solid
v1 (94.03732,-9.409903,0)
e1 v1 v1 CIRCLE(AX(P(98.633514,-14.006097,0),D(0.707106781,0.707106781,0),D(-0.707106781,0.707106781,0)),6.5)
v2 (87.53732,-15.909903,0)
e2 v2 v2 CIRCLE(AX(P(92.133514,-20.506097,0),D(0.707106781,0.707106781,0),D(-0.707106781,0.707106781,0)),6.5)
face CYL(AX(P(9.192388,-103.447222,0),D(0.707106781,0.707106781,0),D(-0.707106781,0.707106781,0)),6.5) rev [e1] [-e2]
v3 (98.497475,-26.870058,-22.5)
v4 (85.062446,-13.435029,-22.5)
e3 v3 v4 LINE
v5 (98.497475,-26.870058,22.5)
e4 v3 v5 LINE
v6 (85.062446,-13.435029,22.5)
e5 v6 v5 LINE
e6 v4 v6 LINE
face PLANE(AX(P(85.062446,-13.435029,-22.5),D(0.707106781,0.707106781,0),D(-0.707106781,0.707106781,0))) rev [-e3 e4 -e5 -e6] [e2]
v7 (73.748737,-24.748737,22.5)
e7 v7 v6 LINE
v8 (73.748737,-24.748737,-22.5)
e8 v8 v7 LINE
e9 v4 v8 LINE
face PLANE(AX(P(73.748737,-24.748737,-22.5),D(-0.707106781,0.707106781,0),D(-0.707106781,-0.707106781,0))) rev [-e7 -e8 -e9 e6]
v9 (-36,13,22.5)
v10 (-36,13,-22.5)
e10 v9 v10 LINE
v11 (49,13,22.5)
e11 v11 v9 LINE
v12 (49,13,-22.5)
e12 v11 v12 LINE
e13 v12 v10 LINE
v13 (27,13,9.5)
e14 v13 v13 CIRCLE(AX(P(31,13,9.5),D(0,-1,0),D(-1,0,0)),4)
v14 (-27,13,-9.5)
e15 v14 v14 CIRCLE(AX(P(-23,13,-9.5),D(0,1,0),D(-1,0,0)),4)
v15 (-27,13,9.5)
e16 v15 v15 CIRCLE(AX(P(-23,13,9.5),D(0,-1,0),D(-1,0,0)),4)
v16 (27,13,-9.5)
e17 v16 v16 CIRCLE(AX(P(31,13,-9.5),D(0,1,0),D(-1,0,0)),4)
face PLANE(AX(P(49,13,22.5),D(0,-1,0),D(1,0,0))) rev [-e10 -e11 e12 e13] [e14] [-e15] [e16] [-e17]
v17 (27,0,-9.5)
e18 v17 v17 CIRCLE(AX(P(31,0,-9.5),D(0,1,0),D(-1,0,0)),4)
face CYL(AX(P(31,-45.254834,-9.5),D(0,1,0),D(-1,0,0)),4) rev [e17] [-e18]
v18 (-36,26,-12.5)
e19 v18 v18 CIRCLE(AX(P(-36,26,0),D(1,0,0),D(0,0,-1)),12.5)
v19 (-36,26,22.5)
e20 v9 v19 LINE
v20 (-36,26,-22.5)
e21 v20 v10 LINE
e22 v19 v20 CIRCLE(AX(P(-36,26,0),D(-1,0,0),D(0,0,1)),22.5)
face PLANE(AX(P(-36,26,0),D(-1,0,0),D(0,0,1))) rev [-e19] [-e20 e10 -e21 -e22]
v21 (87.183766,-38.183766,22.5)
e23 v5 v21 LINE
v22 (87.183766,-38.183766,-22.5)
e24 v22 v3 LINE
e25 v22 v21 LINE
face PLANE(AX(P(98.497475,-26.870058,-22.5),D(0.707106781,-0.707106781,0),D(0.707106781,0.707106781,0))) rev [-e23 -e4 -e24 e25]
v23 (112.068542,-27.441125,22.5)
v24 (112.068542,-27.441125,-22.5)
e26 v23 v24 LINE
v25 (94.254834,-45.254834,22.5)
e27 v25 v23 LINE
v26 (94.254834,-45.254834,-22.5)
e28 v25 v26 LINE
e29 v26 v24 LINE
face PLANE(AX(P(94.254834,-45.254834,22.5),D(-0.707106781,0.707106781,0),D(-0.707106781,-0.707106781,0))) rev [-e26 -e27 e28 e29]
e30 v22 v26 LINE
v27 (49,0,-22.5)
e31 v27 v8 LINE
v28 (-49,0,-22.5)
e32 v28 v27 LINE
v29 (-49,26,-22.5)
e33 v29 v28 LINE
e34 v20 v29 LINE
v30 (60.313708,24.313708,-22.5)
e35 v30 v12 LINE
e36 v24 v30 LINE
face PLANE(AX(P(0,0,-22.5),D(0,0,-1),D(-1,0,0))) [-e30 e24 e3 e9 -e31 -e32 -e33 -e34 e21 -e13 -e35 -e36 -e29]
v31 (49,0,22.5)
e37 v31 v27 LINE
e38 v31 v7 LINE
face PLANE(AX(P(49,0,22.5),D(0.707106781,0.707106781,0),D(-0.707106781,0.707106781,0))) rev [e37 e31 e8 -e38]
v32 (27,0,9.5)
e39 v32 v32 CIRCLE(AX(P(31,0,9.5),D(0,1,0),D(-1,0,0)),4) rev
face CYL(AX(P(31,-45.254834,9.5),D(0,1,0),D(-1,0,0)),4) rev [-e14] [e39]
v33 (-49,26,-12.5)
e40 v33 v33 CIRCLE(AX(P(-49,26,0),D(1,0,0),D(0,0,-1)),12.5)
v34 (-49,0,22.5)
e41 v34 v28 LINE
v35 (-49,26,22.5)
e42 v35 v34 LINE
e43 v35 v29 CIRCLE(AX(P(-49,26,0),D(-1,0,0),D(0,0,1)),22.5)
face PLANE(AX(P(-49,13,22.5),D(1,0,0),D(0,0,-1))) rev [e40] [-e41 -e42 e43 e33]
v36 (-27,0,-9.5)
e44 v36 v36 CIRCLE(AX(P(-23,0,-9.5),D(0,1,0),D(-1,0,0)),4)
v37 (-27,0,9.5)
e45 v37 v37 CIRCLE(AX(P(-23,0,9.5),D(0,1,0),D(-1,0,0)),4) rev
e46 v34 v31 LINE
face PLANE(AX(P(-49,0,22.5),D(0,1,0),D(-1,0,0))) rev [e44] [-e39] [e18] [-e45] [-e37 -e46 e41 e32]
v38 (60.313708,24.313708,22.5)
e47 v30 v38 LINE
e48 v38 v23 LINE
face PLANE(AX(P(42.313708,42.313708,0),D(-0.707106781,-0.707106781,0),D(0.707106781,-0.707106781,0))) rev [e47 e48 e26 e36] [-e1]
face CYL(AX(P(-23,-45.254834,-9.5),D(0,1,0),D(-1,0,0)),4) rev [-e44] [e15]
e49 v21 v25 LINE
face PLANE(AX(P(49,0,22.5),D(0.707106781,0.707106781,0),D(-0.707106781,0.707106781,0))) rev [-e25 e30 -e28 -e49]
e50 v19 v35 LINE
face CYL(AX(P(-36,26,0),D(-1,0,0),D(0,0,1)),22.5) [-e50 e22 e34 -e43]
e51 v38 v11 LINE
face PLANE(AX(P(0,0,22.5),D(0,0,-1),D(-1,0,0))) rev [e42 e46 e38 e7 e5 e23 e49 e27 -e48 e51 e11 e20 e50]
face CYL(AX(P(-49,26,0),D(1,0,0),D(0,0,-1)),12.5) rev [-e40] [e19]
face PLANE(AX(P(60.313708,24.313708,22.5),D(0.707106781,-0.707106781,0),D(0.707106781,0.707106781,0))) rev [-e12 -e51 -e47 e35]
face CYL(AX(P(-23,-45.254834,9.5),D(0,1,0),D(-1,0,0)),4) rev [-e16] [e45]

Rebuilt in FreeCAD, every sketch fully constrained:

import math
import FreeCAD as App
import Part
import Sketcher

V = App.Vector
Q = App.Units.Quantity

doc = App.newDocument("Part")
body = doc.addObject("PartDesign::Body", "Body")

# Sketch on XY plane
sketch1 = doc.addObject("Sketcher::SketchObject", "Sketch")
body.addObject(sketch1)
sketch1.AttachmentSupport = (doc.XY_Plane, [""])
sketch1.MapMode = "FlatFace"
sketch1.addGeometry(Part.LineSegment(V(-49, 13, 0), V(-49, 0, 0)), False)
sketch1.addGeometry(Part.LineSegment(V(-49, 0, 0), V(49, 0, 0)), False)
sketch1.addGeometry(Part.LineSegment(V(49, 0, 0), V(94, -45, 0)), False)
sketch1.addGeometry(Part.LineSegment(V(94, -45, 0), V(101, -39, 0)), False)
sketch1.addGeometry(Part.LineSegment(V(101, -39, 0), V(49, 13, 0)), False)
sketch1.addGeometry(Part.LineSegment(V(49, 13, 0), V(-49, 13, 0)), False)
sketch1.addConstraint(Sketcher.Constraint("Coincident", 0, 2, 1, 1))
sketch1.addConstraint(Sketcher.Constraint("Coincident", 1, 2, 2, 1))
sketch1.addConstraint(Sketcher.Constraint("Coincident", 2, 2, 3, 1))
sketch1.addConstraint(Sketcher.Constraint("Coincident", 3, 2, 4, 1))
sketch1.addConstraint(Sketcher.Constraint("Coincident", 4, 2, 5, 1))
sketch1.addConstraint(Sketcher.Constraint("Coincident", 5, 2, 0, 1))
sketch1.addConstraint(Sketcher.Constraint("Vertical", 0))
sketch1.addConstraint(Sketcher.Constraint("Horizontal", 1))
sketch1.addConstraint(Sketcher.Constraint("Horizontal", 5))
sketch1.addConstraint(Sketcher.Constraint("Symmetric", 0, 2, 1, 2, -1, 1))
sketch1.addConstraint(Sketcher.Constraint("Perpendicular", 2, 3))
sketch1.addConstraint(Sketcher.Constraint("Perpendicular", 3, 4))
sketch1.addConstraint(Sketcher.Constraint("Vertical", 1, 2, 4, 2))
sketch1.addConstraint(Sketcher.Constraint("DistanceX", 1, 1, 1, 2, 98.0))
sketch1.addConstraint(Sketcher.Constraint("DistanceY", 0, 2, 0, 1, 13.0))
sketch1.addConstraint(Sketcher.Constraint("Angle", 2, Q("-45 deg")))
sketch1.addConstraint(Sketcher.Constraint("Distance", 2, 64.0))
pad1 = doc.addObject("PartDesign::Pad", "Pad")
body.addObject(pad1)
pad1.Profile = sketch1
pad1.Length = 45
pad1.Midplane = True

# Sketch on an angled plane
sketch2 = doc.addObject("Sketcher::SketchObject", "Sketch001")
body.addObject(sketch2)
sketch2.Placement = App.Placement(V(31, 31, 0), App.Rotation(V(0, 0, -1), V(-0.707106781, 0.707106781, 0), V(0.707106781, 0.707106781, 0), "ZXY"))
sketch2.addGeometry(Part.LineSegment(V(-22, -25, 0), V(-22, -99, 0)), False)
sketch2.addGeometry(Part.LineSegment(V(-22, -99, 0), V(22, -99, 0)), False)
sketch2.addGeometry(Part.LineSegment(V(22, -99, 0), V(22, -25, 0)), False)
sketch2.addGeometry(Part.LineSegment(V(22, -25, 0), V(-22, -25, 0)), False)
sketch2.addConstraint(Sketcher.Constraint("Coincident", 0, 2, 1, 1))
sketch2.addConstraint(Sketcher.Constraint("Coincident", 1, 2, 2, 1))
sketch2.addConstraint(Sketcher.Constraint("Coincident", 2, 2, 3, 1))
sketch2.addConstraint(Sketcher.Constraint("Coincident", 3, 2, 0, 1))
sketch2.addConstraint(Sketcher.Constraint("Vertical", 0))
sketch2.addConstraint(Sketcher.Constraint("Horizontal", 1))
sketch2.addConstraint(Sketcher.Constraint("Vertical", 2))
sketch2.addConstraint(Sketcher.Constraint("Horizontal", 3))
sketch2.addConstraint(Sketcher.Constraint("DistanceX", 1, 1, 1, 2, 45.0))
sketch2.addConstraint(Sketcher.Constraint("DistanceX", 0, 2, -1, 1, 22.5))
sketch2.addConstraint(Sketcher.Constraint("DistanceY", 0, 2, 0, 1, 73.192388))
sketch2.addConstraint(Sketcher.Constraint("DistanceY", 0, 2, -1, 1, 98.648232))
pad2 = doc.addObject("PartDesign::Pad", "Pad001")
body.addObject(pad2)
pad2.Profile = sketch2
pad2.Length = 16

# Sketch on YZ plane
sketch3 = doc.addObject("Sketcher::SketchObject", "Sketch002")
body.addObject(sketch3)
sketch3.AttachmentSupport = (doc.YZ_Plane, [""])
sketch3.MapMode = "FlatFace"
sketch3.AttachmentOffset = App.Placement(V(0, 0, -49), App.Rotation())
sketch3.addGeometry(Part.LineSegment(V(26, -22, 0), V(0, -22, 0)), False)
sketch3.addGeometry(Part.LineSegment(V(0, -22, 0), V(0, 22, 0)), False)
sketch3.addGeometry(Part.LineSegment(V(0, 22, 0), V(26, 22, 0)), False)
sketch3.addGeometry(Part.ArcOfCircle(Part.Circle(V(26, 0, 0), V(0, 0, 1), 22), math.radians(-90), math.radians(90)), False)
sketch3.addConstraint(Sketcher.Constraint("Coincident", 0, 2, 1, 1))
sketch3.addConstraint(Sketcher.Constraint("Coincident", 1, 2, 2, 1))
sketch3.addConstraint(Sketcher.Constraint("Tangent", 2, 2, 3, 2))
sketch3.addConstraint(Sketcher.Constraint("Tangent", 3, 1, 0, 1))
sketch3.addConstraint(Sketcher.Constraint("Horizontal", 0))
sketch3.addConstraint(Sketcher.Constraint("Vertical", 1))
sketch3.addConstraint(Sketcher.Constraint("Horizontal", 2))
sketch3.addConstraint(Sketcher.Constraint("Symmetric", 0, 2, 1, 2, -1, 1))
sketch3.addConstraint(Sketcher.Constraint("Radius", 3, 22.5))
sketch3.addConstraint(Sketcher.Constraint("DistanceX", 0, 2, 0, 1, 26.0))
pad3 = doc.addObject("PartDesign::Pad", "Pad002")
body.addObject(pad3)
pad3.Profile = sketch3
pad3.Length = 13

# Sketch on XY plane
sketch4 = doc.addObject("Sketcher::SketchObject", "Sketch003")
body.addObject(sketch4)
sketch4.AttachmentSupport = (doc.XY_Plane, [""])
sketch4.MapMode = "FlatFace"
sketch4.AttachmentOffset = App.Placement(V(0, 0, 22.5), App.Rotation())
sketch4.addGeometry(Part.LineSegment(V(85, -13, 0), V(74, -25, 0)), False)
sketch4.addGeometry(Part.LineSegment(V(74, -25, 0), V(87, -38, 0)), False)
sketch4.addGeometry(Part.LineSegment(V(87, -38, 0), V(98, -27, 0)), False)
sketch4.addGeometry(Part.LineSegment(V(98, -27, 0), V(85, -13, 0)), False)
sketch4.addConstraint(Sketcher.Constraint("Coincident", 0, 2, 1, 1))
sketch4.addConstraint(Sketcher.Constraint("Coincident", 1, 2, 2, 1))
sketch4.addConstraint(Sketcher.Constraint("Coincident", 2, 2, 3, 1))
sketch4.addConstraint(Sketcher.Constraint("Coincident", 3, 2, 0, 1))
sketch4.addConstraint(Sketcher.Constraint("Perpendicular", 0, 1))
sketch4.addConstraint(Sketcher.Constraint("Perpendicular", 1, 2))
sketch4.addConstraint(Sketcher.Constraint("Perpendicular", 2, 3))
sketch4.addConstraint(Sketcher.Constraint("Angle", 0, Q("-135 deg")))
sketch4.addConstraint(Sketcher.Constraint("Distance", 0, 16.0))
sketch4.addConstraint(Sketcher.Constraint("Distance", 1, 19.0))
sketch4.addConstraint(Sketcher.Constraint("DistanceY", 3, 2, -1, 1, 13.435029))
sketch4.addConstraint(Sketcher.Constraint("DistanceX", -1, 1, 0, 2, 73.748737))
pocket1 = doc.addObject("PartDesign::Pocket", "Pocket")
body.addObject(pocket1)
pocket1.Profile = sketch4
pocket1.Type = "ThroughAll"
pocket1.Midplane = True

# Sketch on YZ plane
sketch5 = doc.addObject("Sketcher::SketchObject", "Sketch004")
body.addObject(sketch5)
sketch5.AttachmentSupport = (doc.YZ_Plane, [""])
sketch5.MapMode = "FlatFace"
sketch5.AttachmentOffset = App.Placement(V(0, 0, -36), App.Rotation())
sketch5.addGeometry(Part.Circle(V(26, 0, 0), V(0, 0, 1), 12), False)
sketch5.addConstraint(Sketcher.Constraint("PointOnObject", 0, 3, -1))
sketch5.addConstraint(Sketcher.Constraint("Diameter", 0, 25.0))
sketch5.addConstraint(Sketcher.Constraint("DistanceX", -1, 1, 0, 3, 26.0))
pocket2 = doc.addObject("PartDesign::Pocket", "Pocket001")
body.addObject(pocket2)
pocket2.Profile = sketch5
pocket2.Type = "ThroughAll"

# Sketch on an angled plane
sketch6 = doc.addObject("Sketcher::SketchObject", "Sketch005")
body.addObject(sketch6)
sketch6.Placement = App.Placement(V(42.313708, 42.313708, 0), App.Rotation(V(0, 0, -1), V(-0.707106781, 0.707106781, 0), V(0.707106781, 0.707106781, 0), "ZXY"))
sketch6.addGeometry(Part.Circle(V(0, -80, 0), V(0, 0, 1), 6), False)
sketch6.addConstraint(Sketcher.Constraint("PointOnObject", 0, 3, -2))
sketch6.addConstraint(Sketcher.Constraint("Diameter", 0, 13.0))
sketch6.addConstraint(Sketcher.Constraint("DistanceY", 0, 3, -1, 1, 79.648232))
pocket3 = doc.addObject("PartDesign::Pocket", "Pocket002")
body.addObject(pocket3)
pocket3.Profile = sketch6
pocket3.Type = "ThroughAll"

# Sketch on XZ plane
sketch7 = doc.addObject("Sketcher::SketchObject", "Sketch006")
body.addObject(sketch7)
sketch7.AttachmentSupport = (doc.XZ_Plane, [""])
sketch7.MapMode = "FlatFace"
sketch7.AttachmentOffset = App.Placement(V(0, 0, -13), App.Rotation())
sketch7.addGeometry(Part.Circle(V(-23, -9.5, 0), V(0, 0, 1), 4), False)
sketch7.addGeometry(Part.Circle(V(31, -9.5, 0), V(0, 0, 1), 4), False)
sketch7.addConstraint(Sketcher.Constraint("Equal", 0, 1))
sketch7.addConstraint(Sketcher.Constraint("Horizontal", 0, 3, 1, 3))
sketch7.addConstraint(Sketcher.Constraint("Diameter", 0, 8.0))
sketch7.addConstraint(Sketcher.Constraint("DistanceX", 0, 3, -1, 1, 23.0))
sketch7.addConstraint(Sketcher.Constraint("DistanceX", -1, 1, 1, 3, 31.0))
sketch7.addConstraint(Sketcher.Constraint("DistanceY", 0, 3, -1, 1, 9.5))
pocket4 = doc.addObject("PartDesign::Pocket", "Pocket003")
body.addObject(pocket4)
pocket4.Profile = sketch7
pocket4.Type = "ThroughAll"
pocket4.Reversed = True
doc.recompute()

mirrored = doc.addObject("PartDesign::Mirrored", "Mirrored")
body.addObject(mirrored)
mirrored.Originals = [pocket4]
mirrored.MirrorPlane = (doc.XY_Plane, [""])
body.Tip = mirrored

doc.recompute()
